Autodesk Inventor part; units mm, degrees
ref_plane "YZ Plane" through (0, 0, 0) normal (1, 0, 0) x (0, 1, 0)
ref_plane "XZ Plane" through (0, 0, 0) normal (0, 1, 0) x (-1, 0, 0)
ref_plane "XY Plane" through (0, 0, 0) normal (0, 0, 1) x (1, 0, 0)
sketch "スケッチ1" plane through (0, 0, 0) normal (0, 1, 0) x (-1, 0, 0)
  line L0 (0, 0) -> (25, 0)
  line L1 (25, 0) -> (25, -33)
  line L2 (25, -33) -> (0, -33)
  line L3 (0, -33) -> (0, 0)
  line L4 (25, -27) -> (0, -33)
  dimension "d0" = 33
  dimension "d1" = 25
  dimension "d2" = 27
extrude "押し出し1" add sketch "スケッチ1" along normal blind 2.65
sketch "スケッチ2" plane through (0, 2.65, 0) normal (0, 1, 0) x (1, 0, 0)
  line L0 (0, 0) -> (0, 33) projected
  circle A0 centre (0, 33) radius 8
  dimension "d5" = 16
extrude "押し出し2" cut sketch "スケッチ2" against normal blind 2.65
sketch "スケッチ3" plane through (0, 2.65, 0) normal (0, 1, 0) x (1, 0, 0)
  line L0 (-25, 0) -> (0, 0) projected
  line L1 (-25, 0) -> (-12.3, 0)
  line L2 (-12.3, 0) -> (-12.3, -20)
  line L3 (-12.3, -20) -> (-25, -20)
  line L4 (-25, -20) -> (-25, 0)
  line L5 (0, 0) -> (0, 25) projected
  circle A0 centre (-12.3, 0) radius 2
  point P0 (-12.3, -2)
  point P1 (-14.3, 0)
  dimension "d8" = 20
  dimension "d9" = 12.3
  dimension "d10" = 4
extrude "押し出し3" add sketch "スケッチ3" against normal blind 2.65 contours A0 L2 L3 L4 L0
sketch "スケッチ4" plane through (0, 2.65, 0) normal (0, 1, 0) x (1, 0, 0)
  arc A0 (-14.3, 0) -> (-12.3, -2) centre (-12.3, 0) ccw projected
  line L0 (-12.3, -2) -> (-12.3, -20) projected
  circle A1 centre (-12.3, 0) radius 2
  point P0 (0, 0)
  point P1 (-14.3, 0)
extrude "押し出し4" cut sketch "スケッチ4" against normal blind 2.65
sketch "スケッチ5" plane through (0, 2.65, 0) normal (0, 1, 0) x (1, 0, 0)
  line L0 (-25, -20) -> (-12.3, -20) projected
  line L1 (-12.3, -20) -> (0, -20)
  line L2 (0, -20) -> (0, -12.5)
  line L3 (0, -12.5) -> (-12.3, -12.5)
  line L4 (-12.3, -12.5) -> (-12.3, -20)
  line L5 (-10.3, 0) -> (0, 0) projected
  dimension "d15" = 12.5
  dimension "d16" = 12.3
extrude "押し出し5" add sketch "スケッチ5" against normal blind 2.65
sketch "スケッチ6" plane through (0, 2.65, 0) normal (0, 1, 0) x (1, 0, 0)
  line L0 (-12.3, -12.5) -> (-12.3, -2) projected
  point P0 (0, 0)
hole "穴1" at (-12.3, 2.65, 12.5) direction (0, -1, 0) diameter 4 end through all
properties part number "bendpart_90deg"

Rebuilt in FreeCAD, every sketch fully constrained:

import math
import FreeCAD as App
import Part
import Sketcher

V = App.Vector
Q = App.Units.Quantity

doc = App.newDocument("Part")
body = doc.addObject("PartDesign::Body", "Body")

# Sketch on XZ plane
sketch1 = body.newObject("Sketcher::SketchObject", "Sketch")
sketch1.AttachmentSupport = (doc.getObject("XZ_Plane"), [""])
sketch1.MapMode = "FlatFace"
sketch1.addGeometry([
    Part.LineSegment(V(-25, 0, 0), V(0, 0, 0)),
    Part.LineSegment(V(0, 0, 0), V(0, -33, 0)),
    Part.LineSegment(V(0, -33, 0), V(-25, -33, 0)),
    Part.LineSegment(V(-25, -33, 0), V(-25, 0, 0)),
], False)
sketch1.addConstraint([
    Sketcher.Constraint("Coincident", 0, 2, 1, 1),
    Sketcher.Constraint("Coincident", 1, 2, 2, 1),
    Sketcher.Constraint("Coincident", 2, 2, 3, 1),
    Sketcher.Constraint("Coincident", 3, 2, 0, 1),
    Sketcher.Constraint("Horizontal", 0),
    Sketcher.Constraint("Vertical", 1),
    Sketcher.Constraint("Horizontal", 2),
    Sketcher.Constraint("Vertical", 3),
    Sketcher.Constraint("Coincident", 0, 2, -1, 1),
    Sketcher.Constraint("DistanceX", 0, 1, 0, 2, Q("25 mm")),
    Sketcher.Constraint("DistanceY", 1, 2, 1, 1, Q("33 mm")),
])
pad1 = body.newObject("PartDesign::Pad", "Pad")
pad1.Profile = sketch1
pad1.Length = 2.65
pad1.Reversed = True

# Sketch on XZ plane
sketch2 = body.newObject("Sketcher::SketchObject", "Sketch001")
sketch2.AttachmentSupport = (doc.getObject("XZ_Plane"), [""])
sketch2.MapMode = "FlatFace"
sketch2.AttachmentOffset = App.Placement(V(0, 0, -2.65), App.Rotation())
sketch2.addGeometry(Part.Circle(V(0, -33, 0), V(0, 0, 1), 8), False)
sketch2.addConstraint([
    Sketcher.Constraint("PointOnObject", 0, 3, -2),
    Sketcher.Constraint("Diameter", 0, Q("16 mm")),
    Sketcher.Constraint("DistanceY", 0, 3, -1, 1, Q("33 mm")),
])
pocket1 = body.newObject("PartDesign::Pocket", "Pocket")
pocket1.Profile = sketch2
pocket1.Length = 2.65
pocket1.Reversed = True

# Sketch on XZ plane
sketch3 = body.newObject("Sketcher::SketchObject", "Sketch002")
sketch3.AttachmentSupport = (doc.getObject("XZ_Plane"), [""])
sketch3.MapMode = "FlatFace"
sketch3.AttachmentOffset = App.Placement(V(0, 0, -2.65), App.Rotation())
sketch3.addGeometry([
    Part.ArcOfCircle(Part.Circle(V(-12.3, 0, 0), V(0, 0, 1), 2), math.radians(90), math.radians(180)),  # 0
    Part.LineSegment(V(-14.3, 0, 0), V(-25, 0, 0)),  # 1
    Part.LineSegment(V(-25, 0, 0), V(-25, 20, 0)),  # 2
    Part.LineSegment(V(-25, 20, 0), V(-12.3, 20, 0)),  # 3
    Part.LineSegment(V(-12.3, 20, 0), V(-12.3, 2, 0)),  # 4
], False)
sketch3.addConstraint([
    Sketcher.Constraint("Coincident", 0, 2, 1, 1),
    Sketcher.Constraint("Coincident", 1, 2, 2, 1),
    Sketcher.Constraint("Coincident", 2, 2, 3, 1),
    Sketcher.Constraint("Coincident", 3, 2, 4, 1),
    Sketcher.Constraint("Coincident", 4, 2, 0, 1),
    Sketcher.Constraint("Horizontal", 1),
    Sketcher.Constraint("Vertical", 2),
    Sketcher.Constraint("Horizontal", 3),
    Sketcher.Constraint("Vertical", 4),
    Sketcher.Constraint("PointOnObject", 0, 3, -1),
    Sketcher.Constraint("PointOnObject", 0, 2, -1),
    Sketcher.Constraint("Vertical", 0, 3, 3, 2),
    Sketcher.Constraint("Radius", 0, Q("2 mm")),
    Sketcher.Constraint("DistanceY", 2, 1, 2, 2, Q("20 mm")),
    Sketcher.Constraint("DistanceX", 0, 3, -1, 1, Q("12.3 mm")),
    Sketcher.Constraint("DistanceX", 1, 2, 1, 1, Q("10.7 mm")),
])
pad2 = body.newObject("PartDesign::Pad", "Pad001")
pad2.Profile = sketch3
pad2.Length = 2.65

# Sketch on XZ plane
sketch4 = body.newObject("Sketcher::SketchObject", "Sketch003")
sketch4.AttachmentSupport = (doc.getObject("XZ_Plane"), [""])
sketch4.MapMode = "FlatFace"
sketch4.AttachmentOffset = App.Placement(V(0, 0, -2.65), App.Rotation())
sketch4.addGeometry(Part.Circle(V(-12.3, 0, 0), V(0, 0, 1), 2), False)
sketch4.addConstraint([
    Sketcher.Constraint("PointOnObject", 0, 3, -1),
    Sketcher.Constraint("Diameter", 0, Q("4 mm")),
    Sketcher.Constraint("DistanceX", 0, 3, -1, 1, Q("12.3 mm")),
])
pocket2 = body.newObject("PartDesign::Pocket", "Pocket001")
pocket2.Profile = sketch4
pocket2.Length = 2.65
pocket2.Reversed = True

# Sketch on XZ plane
sketch5 = body.newObject("Sketcher::SketchObject", "Sketch004")
sketch5.AttachmentSupport = (doc.getObject("XZ_Plane"), [""])
sketch5.MapMode = "FlatFace"
sketch5.AttachmentOffset = App.Placement(V(0, 0, -2.65), App.Rotation())
sketch5.addGeometry([
    Part.LineSegment(V(-12, 12, 0), V(-12, 20, 0)),
    Part.LineSegment(V(-12, 20, 0), V(0, 20, 0)),
    Part.LineSegment(V(0, 20, 0), V(0, 12, 0)),
    Part.LineSegment(V(0, 12, 0), V(-12, 12, 0)),
], False)
sketch5.addConstraint([
    Sketcher.Constraint("Coincident", 0, 2, 1, 1),
    Sketcher.Constraint("Coincident", 1, 2, 2, 1),
    Sketcher.Constraint("Coincident", 2, 2, 3, 1),
    Sketcher.Constraint("Coincident", 3, 2, 0, 1),
    Sketcher.Constraint("Vertical", 0),
    Sketcher.Constraint("Horizontal", 1),
    Sketcher.Constraint("Vertical", 2),
    Sketcher.Constraint("Horizontal", 3),
    Sketcher.Constraint("PointOnObject", 1, 2, -2),
    Sketcher.Constraint("DistanceX", 1, 1, 1, 2, Q("12.3 mm")),
    Sketcher.Constraint("DistanceY", -1, 1, 2, 2, Q("12.5 mm")),
    Sketcher.Constraint("DistanceY", 0, 1, 0, 2, Q("7.5 mm")),
])
pad3 = body.newObject("PartDesign::Pad", "Pad002")
pad3.Profile = sketch5
pad3.Length = 2.65

# Sketch on XZ plane
sketch6 = body.newObject("Sketcher::SketchObject", "Sketch005")
sketch6.AttachmentSupport = (doc.getObject("XZ_Plane"), [""])
sketch6.MapMode = "FlatFace"
sketch6.AttachmentOffset = App.Placement(V(0, 0, -2.65), App.Rotation())
sketch6.addGeometry(Part.Circle(V(-12.3, 12.5, 0), V(0, 0, 1), 2), False)
sketch6.addConstraint([
    Sketcher.Constraint("Diameter", 0, Q("4 mm")),
    Sketcher.Constraint("DistanceX", 0, 3, -1, 1, Q("12.3 mm")),
    Sketcher.Constraint("DistanceY", -1, 1, 0, 3, Q("12.5 mm")),
])
doc.recompute()
hole = body.newObject("PartDesign::Hole", "Hole")
hole.Profile = sketch6
hole.ThreadType = "None"
hole.Diameter = 4
hole.DepthType = "ThroughAll"
hole.Reversed = True

doc.recompute()
